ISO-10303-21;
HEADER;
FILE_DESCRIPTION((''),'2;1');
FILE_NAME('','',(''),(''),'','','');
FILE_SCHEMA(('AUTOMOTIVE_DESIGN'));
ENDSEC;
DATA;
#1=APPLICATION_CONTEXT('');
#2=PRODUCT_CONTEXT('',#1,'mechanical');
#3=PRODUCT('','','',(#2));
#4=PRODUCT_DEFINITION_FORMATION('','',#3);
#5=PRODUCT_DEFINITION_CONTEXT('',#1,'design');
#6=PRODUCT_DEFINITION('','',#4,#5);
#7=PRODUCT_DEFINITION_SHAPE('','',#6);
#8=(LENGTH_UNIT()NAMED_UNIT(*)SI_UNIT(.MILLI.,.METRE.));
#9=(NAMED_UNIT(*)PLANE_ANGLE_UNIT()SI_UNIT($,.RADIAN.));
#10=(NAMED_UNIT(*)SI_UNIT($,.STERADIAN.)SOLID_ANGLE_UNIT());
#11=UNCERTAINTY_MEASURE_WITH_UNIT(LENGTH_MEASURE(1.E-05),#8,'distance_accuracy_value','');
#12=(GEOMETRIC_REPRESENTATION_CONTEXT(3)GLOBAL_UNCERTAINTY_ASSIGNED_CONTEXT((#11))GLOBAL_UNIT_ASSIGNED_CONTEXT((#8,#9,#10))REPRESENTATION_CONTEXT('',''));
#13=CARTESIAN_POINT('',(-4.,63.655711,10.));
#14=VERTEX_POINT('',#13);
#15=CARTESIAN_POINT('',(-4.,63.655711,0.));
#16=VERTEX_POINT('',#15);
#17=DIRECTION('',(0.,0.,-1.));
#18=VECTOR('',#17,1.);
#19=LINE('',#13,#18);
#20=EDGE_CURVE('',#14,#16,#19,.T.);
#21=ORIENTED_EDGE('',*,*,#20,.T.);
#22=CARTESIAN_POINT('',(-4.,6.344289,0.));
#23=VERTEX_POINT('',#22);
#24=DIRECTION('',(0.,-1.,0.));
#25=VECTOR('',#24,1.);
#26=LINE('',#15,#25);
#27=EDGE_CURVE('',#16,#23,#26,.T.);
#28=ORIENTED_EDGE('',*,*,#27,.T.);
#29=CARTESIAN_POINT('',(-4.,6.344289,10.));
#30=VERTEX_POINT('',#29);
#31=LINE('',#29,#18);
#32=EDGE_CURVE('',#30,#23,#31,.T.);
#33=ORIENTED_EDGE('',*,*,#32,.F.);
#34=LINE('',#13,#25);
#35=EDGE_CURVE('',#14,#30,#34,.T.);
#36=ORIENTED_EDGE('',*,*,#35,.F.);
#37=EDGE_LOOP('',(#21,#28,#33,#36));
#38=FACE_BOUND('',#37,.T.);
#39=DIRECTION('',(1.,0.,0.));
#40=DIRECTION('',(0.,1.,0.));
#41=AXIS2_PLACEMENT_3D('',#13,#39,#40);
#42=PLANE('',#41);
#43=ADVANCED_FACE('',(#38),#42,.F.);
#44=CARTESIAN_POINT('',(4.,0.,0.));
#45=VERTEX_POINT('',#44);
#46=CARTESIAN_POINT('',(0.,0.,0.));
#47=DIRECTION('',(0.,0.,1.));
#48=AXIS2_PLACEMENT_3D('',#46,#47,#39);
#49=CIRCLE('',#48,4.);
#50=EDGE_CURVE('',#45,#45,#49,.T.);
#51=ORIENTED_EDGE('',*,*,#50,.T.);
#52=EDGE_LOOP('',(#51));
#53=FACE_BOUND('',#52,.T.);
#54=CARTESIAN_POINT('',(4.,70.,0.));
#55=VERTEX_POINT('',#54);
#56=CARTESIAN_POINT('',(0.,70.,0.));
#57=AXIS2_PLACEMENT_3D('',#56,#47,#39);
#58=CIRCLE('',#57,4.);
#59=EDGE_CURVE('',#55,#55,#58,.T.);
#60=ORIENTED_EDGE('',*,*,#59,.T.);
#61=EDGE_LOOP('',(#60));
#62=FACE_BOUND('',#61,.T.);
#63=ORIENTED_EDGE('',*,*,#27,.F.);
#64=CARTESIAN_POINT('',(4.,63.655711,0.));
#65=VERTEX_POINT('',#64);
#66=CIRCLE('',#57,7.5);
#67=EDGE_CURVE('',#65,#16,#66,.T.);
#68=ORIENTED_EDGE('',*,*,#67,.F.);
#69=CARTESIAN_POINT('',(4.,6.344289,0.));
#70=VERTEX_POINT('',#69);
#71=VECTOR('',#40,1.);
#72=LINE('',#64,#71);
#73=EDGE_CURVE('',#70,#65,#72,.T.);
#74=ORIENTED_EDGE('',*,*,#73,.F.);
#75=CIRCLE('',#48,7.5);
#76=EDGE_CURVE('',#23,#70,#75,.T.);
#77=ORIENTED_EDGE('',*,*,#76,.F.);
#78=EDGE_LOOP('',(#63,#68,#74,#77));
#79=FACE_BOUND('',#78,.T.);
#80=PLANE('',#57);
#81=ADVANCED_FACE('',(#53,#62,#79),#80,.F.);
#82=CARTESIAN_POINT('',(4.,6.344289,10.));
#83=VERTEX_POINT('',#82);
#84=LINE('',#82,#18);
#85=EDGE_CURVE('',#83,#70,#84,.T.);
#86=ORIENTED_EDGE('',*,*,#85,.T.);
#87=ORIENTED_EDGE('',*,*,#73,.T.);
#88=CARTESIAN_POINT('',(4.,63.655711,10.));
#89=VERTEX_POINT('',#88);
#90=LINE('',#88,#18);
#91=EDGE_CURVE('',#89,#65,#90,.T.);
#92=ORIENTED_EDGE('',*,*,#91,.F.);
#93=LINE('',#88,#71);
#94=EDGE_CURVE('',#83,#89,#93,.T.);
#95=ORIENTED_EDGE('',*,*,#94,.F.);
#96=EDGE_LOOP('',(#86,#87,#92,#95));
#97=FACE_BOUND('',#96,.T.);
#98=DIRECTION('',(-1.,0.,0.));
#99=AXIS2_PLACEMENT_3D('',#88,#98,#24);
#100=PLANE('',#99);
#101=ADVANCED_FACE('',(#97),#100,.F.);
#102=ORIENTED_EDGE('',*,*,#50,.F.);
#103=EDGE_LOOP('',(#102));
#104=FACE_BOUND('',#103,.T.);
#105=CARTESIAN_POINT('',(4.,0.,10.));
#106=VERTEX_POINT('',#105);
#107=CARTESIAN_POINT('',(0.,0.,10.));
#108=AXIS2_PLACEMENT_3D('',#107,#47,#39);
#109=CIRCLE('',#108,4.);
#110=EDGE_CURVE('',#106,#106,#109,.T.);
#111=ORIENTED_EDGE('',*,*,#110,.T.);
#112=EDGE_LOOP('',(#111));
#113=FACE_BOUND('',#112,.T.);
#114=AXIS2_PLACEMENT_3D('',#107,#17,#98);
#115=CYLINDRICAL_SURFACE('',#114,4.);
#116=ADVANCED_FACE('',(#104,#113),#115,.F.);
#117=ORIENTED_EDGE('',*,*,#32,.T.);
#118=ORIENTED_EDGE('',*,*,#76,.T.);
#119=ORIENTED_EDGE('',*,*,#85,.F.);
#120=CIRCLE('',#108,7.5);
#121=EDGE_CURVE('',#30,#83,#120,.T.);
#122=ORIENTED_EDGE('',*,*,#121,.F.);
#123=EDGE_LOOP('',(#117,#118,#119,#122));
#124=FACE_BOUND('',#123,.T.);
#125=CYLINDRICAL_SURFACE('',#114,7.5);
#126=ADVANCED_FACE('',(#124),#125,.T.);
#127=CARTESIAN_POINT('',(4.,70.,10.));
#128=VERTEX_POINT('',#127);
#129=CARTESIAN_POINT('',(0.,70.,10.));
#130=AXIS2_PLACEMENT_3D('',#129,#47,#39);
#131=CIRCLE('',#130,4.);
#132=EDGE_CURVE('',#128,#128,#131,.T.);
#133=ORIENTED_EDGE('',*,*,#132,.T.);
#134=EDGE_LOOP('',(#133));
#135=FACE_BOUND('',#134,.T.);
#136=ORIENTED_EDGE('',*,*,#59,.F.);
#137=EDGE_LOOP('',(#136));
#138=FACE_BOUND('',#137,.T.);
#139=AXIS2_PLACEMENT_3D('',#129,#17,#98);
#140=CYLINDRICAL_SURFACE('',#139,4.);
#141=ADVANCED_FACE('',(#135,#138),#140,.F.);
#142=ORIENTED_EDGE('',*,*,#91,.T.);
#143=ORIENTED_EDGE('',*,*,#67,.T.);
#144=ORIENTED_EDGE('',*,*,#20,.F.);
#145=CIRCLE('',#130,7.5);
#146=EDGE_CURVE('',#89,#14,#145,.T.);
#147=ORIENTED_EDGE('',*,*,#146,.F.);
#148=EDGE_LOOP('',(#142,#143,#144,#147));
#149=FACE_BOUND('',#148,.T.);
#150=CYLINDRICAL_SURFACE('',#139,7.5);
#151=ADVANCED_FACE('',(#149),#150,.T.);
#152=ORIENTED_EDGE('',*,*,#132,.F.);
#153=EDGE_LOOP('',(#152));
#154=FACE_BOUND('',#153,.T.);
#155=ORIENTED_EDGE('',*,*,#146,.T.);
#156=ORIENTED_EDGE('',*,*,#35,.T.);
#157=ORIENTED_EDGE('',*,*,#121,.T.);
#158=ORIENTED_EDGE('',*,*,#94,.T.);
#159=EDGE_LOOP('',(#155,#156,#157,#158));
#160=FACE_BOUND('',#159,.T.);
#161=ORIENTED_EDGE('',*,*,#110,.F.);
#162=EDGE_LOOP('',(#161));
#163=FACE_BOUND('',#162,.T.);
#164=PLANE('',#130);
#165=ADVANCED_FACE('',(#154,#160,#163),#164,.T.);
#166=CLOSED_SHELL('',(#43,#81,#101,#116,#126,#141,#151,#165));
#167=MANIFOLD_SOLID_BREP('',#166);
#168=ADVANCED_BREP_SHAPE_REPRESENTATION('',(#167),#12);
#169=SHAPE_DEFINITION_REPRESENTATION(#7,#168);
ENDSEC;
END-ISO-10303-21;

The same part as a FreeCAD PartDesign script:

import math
import FreeCAD as App
import Part
import Sketcher
from FreeCAD import Vector

doc = App.newDocument("Part")
body = doc.addObject("PartDesign::Body", "Body")

# Sketch on XY plane
sketch1 = doc.addObject("Sketcher::SketchObject", "Sketch")
body.addObject(sketch1)
sketch1.AttachmentSupport = (doc.XY_Plane, [""])
sketch1.MapMode = "FlatFace"
sketch1.addGeometry(Part.LineSegment(Vector(4, 6.344289, 0), Vector(4, 63.655711, 0)), False)
sketch1.addGeometry(Part.ArcOfCircle(Part.Circle(Vector(0, 70, 0), Vector(0, 0, 1), 7.5), math.radians(-57.769047), math.radians(237.769047)), False)
sketch1.addGeometry(Part.LineSegment(Vector(-4, 63.655711, 0), Vector(-4, 6.344289, 0)), False)
sketch1.addGeometry(Part.ArcOfCircle(Part.Circle(Vector(0, 0, 0), Vector(0, 0, 1), 7.5), math.radians(122.230953), math.radians(417.769047)), False)
sketch1.addGeometry(Part.Circle(Vector(0, 0, 0), Vector(0, 0, 1), 4), False)
sketch1.addGeometry(Part.Circle(Vector(0, 70, 0), Vector(0, 0, 1), 4), False)
sketch1.addConstraint(Sketcher.Constraint("Coincident", 0, 2, 1, 1))
sketch1.addConstraint(Sketcher.Constraint("Coincident", 1, 2, 2, 1))
sketch1.addConstraint(Sketcher.Constraint("Coincident", 2, 2, 3, 1))
sketch1.addConstraint(Sketcher.Constraint("Coincident", 3, 2, 0, 1))
sketch1.addConstraint(Sketcher.Constraint("Vertical", 0))
sketch1.addConstraint(Sketcher.Constraint("Vertical", 2))
sketch1.addConstraint(Sketcher.Constraint("Coincident", 3, 3, -1, 1))
sketch1.addConstraint(Sketcher.Constraint("Coincident", 4, 3, -1, 1))
sketch1.addConstraint(Sketcher.Constraint("Coincident", 5, 3, 1, 3))
sketch1.addConstraint(Sketcher.Constraint("Equal", 1, 3))
sketch1.addConstraint(Sketcher.Constraint("Equal", 4, 5))
sketch1.addConstraint(Sketcher.Constraint("Symmetric", 0, 2, 1, 2, -2))
sketch1.addConstraint(Sketcher.Constraint("Diameter", 4, 8.0))
sketch1.addConstraint(Sketcher.Constraint("Radius", 1, 7.5))
sketch1.addConstraint(Sketcher.Constraint("DistanceY", -1, 1, 1, 3, 70.0))
sketch1.addConstraint(Sketcher.Constraint("DistanceX", -1, 1, 0, 2, 4.0))
pad1 = doc.addObject("PartDesign::Pad", "Pad")
body.addObject(pad1)
pad1.Profile = sketch1
pad1.Length = 10

doc.recompute()
